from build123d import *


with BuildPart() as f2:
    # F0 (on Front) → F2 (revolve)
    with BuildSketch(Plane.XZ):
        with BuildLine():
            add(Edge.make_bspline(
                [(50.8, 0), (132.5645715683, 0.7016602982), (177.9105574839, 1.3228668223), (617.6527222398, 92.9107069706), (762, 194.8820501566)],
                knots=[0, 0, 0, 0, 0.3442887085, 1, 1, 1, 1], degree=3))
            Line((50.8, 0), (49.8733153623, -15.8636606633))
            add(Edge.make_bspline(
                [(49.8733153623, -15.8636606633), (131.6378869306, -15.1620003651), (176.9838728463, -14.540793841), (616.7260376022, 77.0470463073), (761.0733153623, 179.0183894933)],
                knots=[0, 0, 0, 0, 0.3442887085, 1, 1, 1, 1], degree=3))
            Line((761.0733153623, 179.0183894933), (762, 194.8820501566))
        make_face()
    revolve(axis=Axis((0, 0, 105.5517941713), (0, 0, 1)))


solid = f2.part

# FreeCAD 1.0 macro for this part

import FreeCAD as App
import Part
import Sketcher
from FreeCAD import Vector

doc = App.newDocument("Part")
body = doc.addObject("PartDesign::Body", "Body")

sketch1 = doc.addObject("Sketcher::SketchObject", "Sketch")
body.addObject(sketch1)
sketch1.AttachmentSupport = (doc.XZ_Plane, [""])
sketch1.MapMode = "FlatFace"
sketch1.addGeometry([
    Part.BSplineCurve([Vector(50.8, 0, 0), Vector(132.564572, 0.70166, 0), Vector(177.910557, 1.322867, 0), Vector(617.652722, 92.910707, 0), Vector(762, 194.88205, 0)], [4, 1, 4], [0, 0.344288708, 1], False, 3, [1, 1, 1, 1, 1], False),
    Part.LineSegment(Vector(50.8, 0, 0), Vector(49.873315, -15.863661, 0)),
    Part.BSplineCurve([Vector(49.873315, -15.863661, 0), Vector(131.637887, -15.162, 0), Vector(176.983873, -14.540794, 0), Vector(616.726038, 77.047046, 0), Vector(761.073315, 179.018389, 0)], [4, 1, 4], [0, 0.344288708, 1], False, 3, [1, 1, 1, 1, 1], False),
    Part.LineSegment(Vector(761.073315, 179.018389, 0), Vector(762, 194.88205, 0)),
], False)
sketch1.addConstraint([
    Sketcher.Constraint("Block", 0),
    Sketcher.Constraint("Block", 2),
    Sketcher.Constraint("Coincident", 0, 1, 1, 1),
    Sketcher.Constraint("Coincident", 1, 2, 2, 1),
    Sketcher.Constraint("Coincident", 2, 2, 3, 1),
    Sketcher.Constraint("Coincident", 3, 2, 0, 2),
])
revolution = doc.addObject("PartDesign::Revolution", "Revolution")
body.addObject(revolution)
revolution.Profile = sketch1
revolution.ReferenceAxis = (sketch1, ["V_Axis"])
revolution.Angle = 360

doc.recompute()
